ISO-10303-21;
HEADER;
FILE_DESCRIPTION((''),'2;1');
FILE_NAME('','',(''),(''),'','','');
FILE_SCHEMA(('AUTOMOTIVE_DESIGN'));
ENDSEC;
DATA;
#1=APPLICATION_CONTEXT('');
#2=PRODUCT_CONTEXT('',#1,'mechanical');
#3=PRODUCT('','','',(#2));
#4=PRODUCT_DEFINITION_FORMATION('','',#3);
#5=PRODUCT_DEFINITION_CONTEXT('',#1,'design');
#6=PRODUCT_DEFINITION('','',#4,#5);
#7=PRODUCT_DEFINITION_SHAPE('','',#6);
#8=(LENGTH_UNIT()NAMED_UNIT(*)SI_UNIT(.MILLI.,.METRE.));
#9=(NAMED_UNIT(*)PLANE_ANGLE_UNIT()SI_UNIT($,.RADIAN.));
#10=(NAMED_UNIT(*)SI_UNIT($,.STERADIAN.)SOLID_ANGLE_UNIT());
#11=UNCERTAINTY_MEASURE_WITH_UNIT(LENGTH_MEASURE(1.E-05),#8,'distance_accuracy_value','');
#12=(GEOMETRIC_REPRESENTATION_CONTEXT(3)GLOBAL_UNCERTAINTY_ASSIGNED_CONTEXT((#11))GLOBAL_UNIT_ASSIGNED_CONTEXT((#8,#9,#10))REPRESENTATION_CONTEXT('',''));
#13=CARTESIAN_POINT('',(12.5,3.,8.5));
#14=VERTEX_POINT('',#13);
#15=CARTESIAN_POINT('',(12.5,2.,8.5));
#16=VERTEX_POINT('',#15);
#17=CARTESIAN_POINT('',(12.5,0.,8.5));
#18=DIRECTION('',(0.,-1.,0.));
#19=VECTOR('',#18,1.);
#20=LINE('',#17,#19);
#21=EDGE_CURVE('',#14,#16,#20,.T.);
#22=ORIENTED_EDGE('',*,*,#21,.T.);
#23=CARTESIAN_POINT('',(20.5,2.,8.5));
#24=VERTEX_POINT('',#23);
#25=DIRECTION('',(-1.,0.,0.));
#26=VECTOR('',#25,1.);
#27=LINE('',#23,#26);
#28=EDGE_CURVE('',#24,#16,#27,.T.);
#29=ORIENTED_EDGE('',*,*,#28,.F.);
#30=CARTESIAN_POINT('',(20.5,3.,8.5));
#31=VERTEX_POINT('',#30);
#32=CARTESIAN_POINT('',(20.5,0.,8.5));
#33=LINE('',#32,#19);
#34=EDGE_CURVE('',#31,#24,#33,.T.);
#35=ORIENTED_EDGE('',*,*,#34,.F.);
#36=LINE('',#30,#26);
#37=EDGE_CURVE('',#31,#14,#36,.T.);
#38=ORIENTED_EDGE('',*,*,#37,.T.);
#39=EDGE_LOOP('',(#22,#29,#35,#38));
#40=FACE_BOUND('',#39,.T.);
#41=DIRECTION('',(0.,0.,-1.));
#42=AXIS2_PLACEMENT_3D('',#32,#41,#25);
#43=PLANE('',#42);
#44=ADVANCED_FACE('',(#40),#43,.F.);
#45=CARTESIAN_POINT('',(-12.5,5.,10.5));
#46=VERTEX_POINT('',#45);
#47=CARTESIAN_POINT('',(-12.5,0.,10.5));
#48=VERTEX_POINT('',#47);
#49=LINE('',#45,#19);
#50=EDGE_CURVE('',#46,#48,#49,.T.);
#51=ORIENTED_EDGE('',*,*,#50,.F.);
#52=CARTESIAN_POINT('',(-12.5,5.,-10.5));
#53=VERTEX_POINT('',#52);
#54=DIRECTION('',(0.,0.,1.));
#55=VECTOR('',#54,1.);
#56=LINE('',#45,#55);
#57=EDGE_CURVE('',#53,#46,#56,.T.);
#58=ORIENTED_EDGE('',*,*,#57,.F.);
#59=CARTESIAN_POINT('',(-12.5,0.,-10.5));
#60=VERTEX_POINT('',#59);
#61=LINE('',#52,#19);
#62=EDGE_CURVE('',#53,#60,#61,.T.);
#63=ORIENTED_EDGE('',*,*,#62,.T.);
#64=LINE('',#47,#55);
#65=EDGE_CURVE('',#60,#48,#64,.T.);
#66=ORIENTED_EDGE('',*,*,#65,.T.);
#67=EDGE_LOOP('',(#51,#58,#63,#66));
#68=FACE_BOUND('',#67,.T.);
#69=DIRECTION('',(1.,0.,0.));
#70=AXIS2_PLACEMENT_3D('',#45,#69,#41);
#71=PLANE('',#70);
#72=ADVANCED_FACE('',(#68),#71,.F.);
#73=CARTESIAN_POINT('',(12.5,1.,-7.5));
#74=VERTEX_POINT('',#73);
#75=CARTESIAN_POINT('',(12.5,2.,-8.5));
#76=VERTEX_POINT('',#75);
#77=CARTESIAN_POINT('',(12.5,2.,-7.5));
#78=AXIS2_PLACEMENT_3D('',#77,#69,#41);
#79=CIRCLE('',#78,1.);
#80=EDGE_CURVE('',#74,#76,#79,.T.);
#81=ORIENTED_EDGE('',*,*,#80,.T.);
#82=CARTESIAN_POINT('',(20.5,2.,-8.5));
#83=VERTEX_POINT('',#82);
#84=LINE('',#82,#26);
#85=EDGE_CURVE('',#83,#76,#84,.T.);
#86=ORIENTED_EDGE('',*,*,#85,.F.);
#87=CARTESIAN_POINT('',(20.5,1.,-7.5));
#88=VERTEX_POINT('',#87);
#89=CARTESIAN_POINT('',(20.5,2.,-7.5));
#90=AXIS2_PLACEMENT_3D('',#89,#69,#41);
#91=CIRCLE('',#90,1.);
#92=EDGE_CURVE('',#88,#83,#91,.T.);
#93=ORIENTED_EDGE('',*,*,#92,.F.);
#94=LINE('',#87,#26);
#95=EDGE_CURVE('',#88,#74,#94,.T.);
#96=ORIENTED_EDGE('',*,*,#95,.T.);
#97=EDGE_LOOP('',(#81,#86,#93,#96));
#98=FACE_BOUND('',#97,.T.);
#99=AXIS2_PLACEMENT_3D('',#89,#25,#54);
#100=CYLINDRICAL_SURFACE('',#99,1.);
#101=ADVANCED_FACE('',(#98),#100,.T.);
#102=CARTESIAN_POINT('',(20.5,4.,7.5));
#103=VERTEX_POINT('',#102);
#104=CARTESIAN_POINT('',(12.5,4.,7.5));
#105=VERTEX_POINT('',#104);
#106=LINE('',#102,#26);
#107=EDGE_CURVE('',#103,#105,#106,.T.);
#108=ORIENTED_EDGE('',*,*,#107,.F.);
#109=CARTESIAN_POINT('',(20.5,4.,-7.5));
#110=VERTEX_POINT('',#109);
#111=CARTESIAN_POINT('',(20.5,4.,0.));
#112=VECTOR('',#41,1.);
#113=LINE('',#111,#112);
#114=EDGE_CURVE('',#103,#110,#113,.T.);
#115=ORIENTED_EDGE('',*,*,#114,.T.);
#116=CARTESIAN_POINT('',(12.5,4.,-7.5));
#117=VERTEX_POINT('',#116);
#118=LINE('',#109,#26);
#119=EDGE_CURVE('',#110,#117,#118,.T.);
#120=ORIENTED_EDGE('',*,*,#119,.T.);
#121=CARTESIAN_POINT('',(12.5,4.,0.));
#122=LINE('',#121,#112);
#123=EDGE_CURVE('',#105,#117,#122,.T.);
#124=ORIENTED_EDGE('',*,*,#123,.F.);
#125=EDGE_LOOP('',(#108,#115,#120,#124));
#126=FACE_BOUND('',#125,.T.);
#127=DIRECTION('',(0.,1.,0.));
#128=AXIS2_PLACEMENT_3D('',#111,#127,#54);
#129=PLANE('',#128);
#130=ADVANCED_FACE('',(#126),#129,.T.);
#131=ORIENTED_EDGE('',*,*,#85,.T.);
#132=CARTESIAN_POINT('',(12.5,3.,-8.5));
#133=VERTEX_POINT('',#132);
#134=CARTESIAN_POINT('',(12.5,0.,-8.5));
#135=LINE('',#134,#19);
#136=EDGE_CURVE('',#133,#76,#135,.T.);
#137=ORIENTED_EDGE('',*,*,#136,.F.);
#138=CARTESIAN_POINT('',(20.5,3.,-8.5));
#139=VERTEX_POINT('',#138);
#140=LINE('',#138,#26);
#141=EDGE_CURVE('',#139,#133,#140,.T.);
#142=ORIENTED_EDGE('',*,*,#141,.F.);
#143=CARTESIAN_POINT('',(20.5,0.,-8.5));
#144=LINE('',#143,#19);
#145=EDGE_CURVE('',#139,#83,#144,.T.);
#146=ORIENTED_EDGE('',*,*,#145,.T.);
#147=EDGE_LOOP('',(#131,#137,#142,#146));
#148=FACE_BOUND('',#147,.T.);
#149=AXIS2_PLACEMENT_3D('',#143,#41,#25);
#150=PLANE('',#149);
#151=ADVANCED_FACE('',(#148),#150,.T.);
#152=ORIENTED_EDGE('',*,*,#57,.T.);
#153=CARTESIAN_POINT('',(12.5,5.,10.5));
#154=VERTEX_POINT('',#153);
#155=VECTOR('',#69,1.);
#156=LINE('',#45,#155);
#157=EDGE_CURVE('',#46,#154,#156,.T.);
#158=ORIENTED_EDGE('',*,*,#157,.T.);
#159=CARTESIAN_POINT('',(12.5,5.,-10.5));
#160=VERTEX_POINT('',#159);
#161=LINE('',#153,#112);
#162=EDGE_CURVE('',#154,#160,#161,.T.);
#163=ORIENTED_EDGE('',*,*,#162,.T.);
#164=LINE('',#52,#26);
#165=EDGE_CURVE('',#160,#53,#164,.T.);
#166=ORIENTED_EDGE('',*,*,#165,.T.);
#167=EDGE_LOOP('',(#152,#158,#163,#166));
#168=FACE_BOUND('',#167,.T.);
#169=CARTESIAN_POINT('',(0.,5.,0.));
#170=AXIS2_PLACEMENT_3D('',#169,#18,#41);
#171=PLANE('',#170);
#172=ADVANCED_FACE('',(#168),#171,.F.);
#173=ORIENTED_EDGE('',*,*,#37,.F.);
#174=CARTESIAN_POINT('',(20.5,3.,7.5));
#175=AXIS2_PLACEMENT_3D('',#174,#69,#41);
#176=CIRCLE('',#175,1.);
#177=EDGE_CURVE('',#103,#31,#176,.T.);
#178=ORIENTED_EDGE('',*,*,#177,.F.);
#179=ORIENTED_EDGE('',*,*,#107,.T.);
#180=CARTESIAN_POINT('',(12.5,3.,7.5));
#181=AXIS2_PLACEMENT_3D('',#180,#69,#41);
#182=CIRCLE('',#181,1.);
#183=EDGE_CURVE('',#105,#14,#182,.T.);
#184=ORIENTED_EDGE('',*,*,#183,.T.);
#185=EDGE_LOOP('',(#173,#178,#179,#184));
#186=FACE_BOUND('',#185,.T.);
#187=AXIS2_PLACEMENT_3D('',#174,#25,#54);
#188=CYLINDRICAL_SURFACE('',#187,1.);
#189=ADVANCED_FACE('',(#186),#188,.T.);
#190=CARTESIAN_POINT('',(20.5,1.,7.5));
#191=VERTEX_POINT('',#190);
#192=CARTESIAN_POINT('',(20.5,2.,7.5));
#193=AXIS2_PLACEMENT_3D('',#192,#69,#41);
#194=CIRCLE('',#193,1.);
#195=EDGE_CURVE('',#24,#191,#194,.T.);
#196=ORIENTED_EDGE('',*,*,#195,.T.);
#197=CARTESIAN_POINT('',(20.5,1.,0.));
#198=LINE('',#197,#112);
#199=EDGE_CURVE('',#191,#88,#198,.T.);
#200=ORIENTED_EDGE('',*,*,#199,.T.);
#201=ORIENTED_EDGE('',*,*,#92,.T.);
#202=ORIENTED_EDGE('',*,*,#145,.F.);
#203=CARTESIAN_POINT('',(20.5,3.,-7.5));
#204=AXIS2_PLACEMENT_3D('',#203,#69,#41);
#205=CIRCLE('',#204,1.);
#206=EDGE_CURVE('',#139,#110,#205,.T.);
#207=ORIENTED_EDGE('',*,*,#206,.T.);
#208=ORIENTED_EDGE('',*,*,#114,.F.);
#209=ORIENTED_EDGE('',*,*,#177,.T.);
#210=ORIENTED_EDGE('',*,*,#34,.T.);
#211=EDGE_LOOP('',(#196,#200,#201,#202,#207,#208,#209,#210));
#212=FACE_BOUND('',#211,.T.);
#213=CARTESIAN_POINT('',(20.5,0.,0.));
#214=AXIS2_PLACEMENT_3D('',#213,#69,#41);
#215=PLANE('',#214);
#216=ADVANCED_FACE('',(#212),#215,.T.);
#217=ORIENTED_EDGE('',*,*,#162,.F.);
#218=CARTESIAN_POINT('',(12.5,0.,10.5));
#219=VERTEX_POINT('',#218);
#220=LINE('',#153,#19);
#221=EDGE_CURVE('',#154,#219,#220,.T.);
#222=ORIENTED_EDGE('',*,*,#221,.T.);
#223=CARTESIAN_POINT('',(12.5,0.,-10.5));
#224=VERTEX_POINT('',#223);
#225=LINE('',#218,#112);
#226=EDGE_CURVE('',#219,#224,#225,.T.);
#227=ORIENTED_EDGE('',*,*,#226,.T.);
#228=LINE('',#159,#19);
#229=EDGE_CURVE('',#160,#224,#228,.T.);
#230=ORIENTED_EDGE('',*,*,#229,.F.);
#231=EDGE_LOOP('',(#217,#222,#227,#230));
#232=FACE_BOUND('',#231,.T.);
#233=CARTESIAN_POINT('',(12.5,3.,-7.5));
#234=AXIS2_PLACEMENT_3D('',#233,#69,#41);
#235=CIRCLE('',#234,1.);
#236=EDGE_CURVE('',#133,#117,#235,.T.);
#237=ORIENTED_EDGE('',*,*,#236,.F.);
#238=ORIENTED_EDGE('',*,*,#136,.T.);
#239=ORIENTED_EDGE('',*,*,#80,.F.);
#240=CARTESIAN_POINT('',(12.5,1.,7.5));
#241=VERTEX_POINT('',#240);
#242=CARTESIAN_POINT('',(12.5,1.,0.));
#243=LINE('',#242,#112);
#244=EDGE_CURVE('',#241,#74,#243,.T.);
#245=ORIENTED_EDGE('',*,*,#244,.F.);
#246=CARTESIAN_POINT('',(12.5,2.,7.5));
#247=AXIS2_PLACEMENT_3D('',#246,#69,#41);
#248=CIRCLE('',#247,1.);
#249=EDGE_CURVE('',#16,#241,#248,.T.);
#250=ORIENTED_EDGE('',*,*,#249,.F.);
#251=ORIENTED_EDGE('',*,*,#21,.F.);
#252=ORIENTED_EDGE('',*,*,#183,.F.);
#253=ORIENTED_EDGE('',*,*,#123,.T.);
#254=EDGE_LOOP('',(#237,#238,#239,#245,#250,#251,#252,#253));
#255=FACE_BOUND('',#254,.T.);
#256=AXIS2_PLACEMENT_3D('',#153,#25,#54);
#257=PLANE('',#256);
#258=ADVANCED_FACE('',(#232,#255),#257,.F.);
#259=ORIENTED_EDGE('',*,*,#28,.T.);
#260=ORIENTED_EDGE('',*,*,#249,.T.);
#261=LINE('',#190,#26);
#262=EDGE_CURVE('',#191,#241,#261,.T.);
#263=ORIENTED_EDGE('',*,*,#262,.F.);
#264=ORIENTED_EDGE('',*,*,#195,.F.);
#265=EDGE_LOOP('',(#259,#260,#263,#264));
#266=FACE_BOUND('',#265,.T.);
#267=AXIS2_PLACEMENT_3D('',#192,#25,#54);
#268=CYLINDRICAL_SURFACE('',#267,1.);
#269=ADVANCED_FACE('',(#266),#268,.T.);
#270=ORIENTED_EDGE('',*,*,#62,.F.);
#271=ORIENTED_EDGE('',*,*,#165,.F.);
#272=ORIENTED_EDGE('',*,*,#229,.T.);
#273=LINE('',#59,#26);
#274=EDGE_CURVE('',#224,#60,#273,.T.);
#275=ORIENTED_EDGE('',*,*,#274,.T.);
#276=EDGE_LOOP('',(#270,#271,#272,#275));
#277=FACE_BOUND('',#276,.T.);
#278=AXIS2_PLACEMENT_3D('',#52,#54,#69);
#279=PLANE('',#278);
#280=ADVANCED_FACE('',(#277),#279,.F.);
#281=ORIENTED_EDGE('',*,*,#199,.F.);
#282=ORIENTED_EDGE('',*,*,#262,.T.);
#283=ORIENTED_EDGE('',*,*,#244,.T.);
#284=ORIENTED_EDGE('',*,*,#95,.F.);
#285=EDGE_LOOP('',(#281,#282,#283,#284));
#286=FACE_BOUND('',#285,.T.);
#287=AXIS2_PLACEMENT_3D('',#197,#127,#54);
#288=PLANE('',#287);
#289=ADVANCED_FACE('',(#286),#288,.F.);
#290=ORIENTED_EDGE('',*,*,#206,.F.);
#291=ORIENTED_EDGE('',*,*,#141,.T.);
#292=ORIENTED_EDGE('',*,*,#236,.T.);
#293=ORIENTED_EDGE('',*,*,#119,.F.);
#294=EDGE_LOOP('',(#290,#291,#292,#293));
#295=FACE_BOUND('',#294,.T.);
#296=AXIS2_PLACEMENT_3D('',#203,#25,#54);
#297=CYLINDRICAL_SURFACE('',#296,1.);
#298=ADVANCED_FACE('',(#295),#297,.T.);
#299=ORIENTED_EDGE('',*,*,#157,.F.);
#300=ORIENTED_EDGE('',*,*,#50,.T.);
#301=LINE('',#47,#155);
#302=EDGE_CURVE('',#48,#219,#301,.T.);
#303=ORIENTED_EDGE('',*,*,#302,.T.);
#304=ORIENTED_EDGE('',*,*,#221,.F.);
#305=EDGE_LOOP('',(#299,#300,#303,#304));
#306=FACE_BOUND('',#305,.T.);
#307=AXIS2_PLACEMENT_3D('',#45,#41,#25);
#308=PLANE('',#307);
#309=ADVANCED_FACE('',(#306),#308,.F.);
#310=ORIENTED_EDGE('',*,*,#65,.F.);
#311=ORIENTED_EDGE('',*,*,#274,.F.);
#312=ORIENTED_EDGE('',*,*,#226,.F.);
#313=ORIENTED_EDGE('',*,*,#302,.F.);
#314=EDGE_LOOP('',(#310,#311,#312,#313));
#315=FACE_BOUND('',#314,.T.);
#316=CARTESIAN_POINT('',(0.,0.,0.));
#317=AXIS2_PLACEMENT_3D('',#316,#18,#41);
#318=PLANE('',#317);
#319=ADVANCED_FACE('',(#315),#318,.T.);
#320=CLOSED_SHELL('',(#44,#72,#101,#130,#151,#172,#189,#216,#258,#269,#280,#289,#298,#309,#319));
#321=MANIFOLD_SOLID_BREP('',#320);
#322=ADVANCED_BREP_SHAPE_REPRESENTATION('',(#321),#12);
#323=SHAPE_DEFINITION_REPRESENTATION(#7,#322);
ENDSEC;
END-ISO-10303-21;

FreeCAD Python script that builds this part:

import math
import FreeCAD as App
import Part
import Sketcher

V = App.Vector


def add_polygon(sketch, points):
    """Adds a closed chain of lines whose ends are joined by coincident constraints."""
    first, n = sketch.GeometryCount, len(points)
    for a, b in zip(points, points[1:] + points[:1]):
        sketch.addGeometry(Part.LineSegment(App.Vector(*a, 0), App.Vector(*b, 0)), False)
    for i in range(n):
        sketch.addConstraint(Sketcher.Constraint("Coincident", first + i, 2, first + (i + 1) % n, 1))

doc = App.newDocument("Part")
body = doc.addObject("PartDesign::Body", "Body")

# Sketch on XZ plane
sketch1 = body.newObject("Sketcher::SketchObject", "Sketch")
sketch1.AttachmentSupport = (doc.getObject("XZ_Plane"), [""])
sketch1.MapMode = "FlatFace"
add_polygon(sketch1, [(-12.5, -10.5), (-12.5, 10.5), (12.5, 10.5), (12.5, -10.5)])  # lines 0-3
sketch1.addConstraint([
    Sketcher.Constraint("Vertical", 0),
    Sketcher.Constraint("Horizontal", 1),
    Sketcher.Constraint("Vertical", 2),
    Sketcher.Constraint("Horizontal", 3),
    Sketcher.Constraint("Symmetric", 0, 2, 2, 2, -1, 1),
    Sketcher.Constraint("DistanceX", 1, 1, 1, 2, 25.0),
    Sketcher.Constraint("DistanceY", 0, 1, 0, 2, 21.0),
])
pad1 = body.newObject("PartDesign::Pad", "Pad")
pad1.Profile = sketch1
pad1.Length = 5
pad1.Reversed = True

# Sketch on YZ plane
sketch2 = body.newObject("Sketcher::SketchObject", "Sketch001")
sketch2.AttachmentSupport = (doc.getObject("YZ_Plane"), [""])
sketch2.MapMode = "FlatFace"
sketch2.AttachmentOffset = App.Placement(V(0, 0, 12.5), App.Rotation())
sketch2.addGeometry([
    Part.LineSegment(V(1, 7.5, 0), V(1, -7.5, 0)),  # 0
    Part.ArcOfCircle(Part.Circle(V(2, -7.5, 0), V(0, 0, 1), 1), math.radians(-180), math.radians(-90)),  # 1
    Part.LineSegment(V(2, -8.5, 0), V(3, -8.5, 0)),  # 2
    Part.ArcOfCircle(Part.Circle(V(3, -7.5, 0), V(0, 0, 1), 1), math.radians(-90), math.radians(0)),  # 3
    Part.LineSegment(V(4, -7.5, 0), V(4, 7.5, 0)),  # 4
    Part.ArcOfCircle(Part.Circle(V(3, 7.5, 0), V(0, 0, 1), 1), math.radians(0), math.radians(90)),  # 5
    Part.LineSegment(V(3, 8.5, 0), V(2, 8.5, 0)),  # 6
    Part.ArcOfCircle(Part.Circle(V(2, 7.5, 0), V(0, 0, 1), 1), math.radians(90), math.radians(180)),  # 7
], False)
sketch2.addConstraint([
    Sketcher.Constraint("Tangent", 0, 2, 1, 1),
    Sketcher.Constraint("Tangent", 1, 2, 2, 1),
    Sketcher.Constraint("Tangent", 2, 2, 3, 1),
    Sketcher.Constraint("Tangent", 3, 2, 4, 1),
    Sketcher.Constraint("Tangent", 4, 2, 5, 1),
    Sketcher.Constraint("Tangent", 5, 2, 6, 1),
    Sketcher.Constraint("Tangent", 6, 2, 7, 1),
    Sketcher.Constraint("Tangent", 7, 2, 0, 1),
    Sketcher.Constraint("Vertical", 0),
    Sketcher.Constraint("Horizontal", 2),
    Sketcher.Constraint("Vertical", 4),
    Sketcher.Constraint("Horizontal", 6),
    Sketcher.Constraint("Equal", 1, 3),
    Sketcher.Constraint("Equal", 3, 5),
    Sketcher.Constraint("Equal", 5, 7),
    Sketcher.Constraint("Radius", 1, 1.0),
    Sketcher.Constraint("DistanceX", 2, 1, 2, 2, 1.0),
    Sketcher.Constraint("DistanceY", 0, 2, 0, 1, 15.0),
    Sketcher.Constraint("DistanceX", -1, 1, 1, 3, 2.0),
    Sketcher.Constraint("DistanceY", 1, 3, -1, 1, 7.5),
])
pad2 = body.newObject("PartDesign::Pad", "Pad001")
pad2.Profile = sketch2
pad2.Length = 8

doc.recompute()
